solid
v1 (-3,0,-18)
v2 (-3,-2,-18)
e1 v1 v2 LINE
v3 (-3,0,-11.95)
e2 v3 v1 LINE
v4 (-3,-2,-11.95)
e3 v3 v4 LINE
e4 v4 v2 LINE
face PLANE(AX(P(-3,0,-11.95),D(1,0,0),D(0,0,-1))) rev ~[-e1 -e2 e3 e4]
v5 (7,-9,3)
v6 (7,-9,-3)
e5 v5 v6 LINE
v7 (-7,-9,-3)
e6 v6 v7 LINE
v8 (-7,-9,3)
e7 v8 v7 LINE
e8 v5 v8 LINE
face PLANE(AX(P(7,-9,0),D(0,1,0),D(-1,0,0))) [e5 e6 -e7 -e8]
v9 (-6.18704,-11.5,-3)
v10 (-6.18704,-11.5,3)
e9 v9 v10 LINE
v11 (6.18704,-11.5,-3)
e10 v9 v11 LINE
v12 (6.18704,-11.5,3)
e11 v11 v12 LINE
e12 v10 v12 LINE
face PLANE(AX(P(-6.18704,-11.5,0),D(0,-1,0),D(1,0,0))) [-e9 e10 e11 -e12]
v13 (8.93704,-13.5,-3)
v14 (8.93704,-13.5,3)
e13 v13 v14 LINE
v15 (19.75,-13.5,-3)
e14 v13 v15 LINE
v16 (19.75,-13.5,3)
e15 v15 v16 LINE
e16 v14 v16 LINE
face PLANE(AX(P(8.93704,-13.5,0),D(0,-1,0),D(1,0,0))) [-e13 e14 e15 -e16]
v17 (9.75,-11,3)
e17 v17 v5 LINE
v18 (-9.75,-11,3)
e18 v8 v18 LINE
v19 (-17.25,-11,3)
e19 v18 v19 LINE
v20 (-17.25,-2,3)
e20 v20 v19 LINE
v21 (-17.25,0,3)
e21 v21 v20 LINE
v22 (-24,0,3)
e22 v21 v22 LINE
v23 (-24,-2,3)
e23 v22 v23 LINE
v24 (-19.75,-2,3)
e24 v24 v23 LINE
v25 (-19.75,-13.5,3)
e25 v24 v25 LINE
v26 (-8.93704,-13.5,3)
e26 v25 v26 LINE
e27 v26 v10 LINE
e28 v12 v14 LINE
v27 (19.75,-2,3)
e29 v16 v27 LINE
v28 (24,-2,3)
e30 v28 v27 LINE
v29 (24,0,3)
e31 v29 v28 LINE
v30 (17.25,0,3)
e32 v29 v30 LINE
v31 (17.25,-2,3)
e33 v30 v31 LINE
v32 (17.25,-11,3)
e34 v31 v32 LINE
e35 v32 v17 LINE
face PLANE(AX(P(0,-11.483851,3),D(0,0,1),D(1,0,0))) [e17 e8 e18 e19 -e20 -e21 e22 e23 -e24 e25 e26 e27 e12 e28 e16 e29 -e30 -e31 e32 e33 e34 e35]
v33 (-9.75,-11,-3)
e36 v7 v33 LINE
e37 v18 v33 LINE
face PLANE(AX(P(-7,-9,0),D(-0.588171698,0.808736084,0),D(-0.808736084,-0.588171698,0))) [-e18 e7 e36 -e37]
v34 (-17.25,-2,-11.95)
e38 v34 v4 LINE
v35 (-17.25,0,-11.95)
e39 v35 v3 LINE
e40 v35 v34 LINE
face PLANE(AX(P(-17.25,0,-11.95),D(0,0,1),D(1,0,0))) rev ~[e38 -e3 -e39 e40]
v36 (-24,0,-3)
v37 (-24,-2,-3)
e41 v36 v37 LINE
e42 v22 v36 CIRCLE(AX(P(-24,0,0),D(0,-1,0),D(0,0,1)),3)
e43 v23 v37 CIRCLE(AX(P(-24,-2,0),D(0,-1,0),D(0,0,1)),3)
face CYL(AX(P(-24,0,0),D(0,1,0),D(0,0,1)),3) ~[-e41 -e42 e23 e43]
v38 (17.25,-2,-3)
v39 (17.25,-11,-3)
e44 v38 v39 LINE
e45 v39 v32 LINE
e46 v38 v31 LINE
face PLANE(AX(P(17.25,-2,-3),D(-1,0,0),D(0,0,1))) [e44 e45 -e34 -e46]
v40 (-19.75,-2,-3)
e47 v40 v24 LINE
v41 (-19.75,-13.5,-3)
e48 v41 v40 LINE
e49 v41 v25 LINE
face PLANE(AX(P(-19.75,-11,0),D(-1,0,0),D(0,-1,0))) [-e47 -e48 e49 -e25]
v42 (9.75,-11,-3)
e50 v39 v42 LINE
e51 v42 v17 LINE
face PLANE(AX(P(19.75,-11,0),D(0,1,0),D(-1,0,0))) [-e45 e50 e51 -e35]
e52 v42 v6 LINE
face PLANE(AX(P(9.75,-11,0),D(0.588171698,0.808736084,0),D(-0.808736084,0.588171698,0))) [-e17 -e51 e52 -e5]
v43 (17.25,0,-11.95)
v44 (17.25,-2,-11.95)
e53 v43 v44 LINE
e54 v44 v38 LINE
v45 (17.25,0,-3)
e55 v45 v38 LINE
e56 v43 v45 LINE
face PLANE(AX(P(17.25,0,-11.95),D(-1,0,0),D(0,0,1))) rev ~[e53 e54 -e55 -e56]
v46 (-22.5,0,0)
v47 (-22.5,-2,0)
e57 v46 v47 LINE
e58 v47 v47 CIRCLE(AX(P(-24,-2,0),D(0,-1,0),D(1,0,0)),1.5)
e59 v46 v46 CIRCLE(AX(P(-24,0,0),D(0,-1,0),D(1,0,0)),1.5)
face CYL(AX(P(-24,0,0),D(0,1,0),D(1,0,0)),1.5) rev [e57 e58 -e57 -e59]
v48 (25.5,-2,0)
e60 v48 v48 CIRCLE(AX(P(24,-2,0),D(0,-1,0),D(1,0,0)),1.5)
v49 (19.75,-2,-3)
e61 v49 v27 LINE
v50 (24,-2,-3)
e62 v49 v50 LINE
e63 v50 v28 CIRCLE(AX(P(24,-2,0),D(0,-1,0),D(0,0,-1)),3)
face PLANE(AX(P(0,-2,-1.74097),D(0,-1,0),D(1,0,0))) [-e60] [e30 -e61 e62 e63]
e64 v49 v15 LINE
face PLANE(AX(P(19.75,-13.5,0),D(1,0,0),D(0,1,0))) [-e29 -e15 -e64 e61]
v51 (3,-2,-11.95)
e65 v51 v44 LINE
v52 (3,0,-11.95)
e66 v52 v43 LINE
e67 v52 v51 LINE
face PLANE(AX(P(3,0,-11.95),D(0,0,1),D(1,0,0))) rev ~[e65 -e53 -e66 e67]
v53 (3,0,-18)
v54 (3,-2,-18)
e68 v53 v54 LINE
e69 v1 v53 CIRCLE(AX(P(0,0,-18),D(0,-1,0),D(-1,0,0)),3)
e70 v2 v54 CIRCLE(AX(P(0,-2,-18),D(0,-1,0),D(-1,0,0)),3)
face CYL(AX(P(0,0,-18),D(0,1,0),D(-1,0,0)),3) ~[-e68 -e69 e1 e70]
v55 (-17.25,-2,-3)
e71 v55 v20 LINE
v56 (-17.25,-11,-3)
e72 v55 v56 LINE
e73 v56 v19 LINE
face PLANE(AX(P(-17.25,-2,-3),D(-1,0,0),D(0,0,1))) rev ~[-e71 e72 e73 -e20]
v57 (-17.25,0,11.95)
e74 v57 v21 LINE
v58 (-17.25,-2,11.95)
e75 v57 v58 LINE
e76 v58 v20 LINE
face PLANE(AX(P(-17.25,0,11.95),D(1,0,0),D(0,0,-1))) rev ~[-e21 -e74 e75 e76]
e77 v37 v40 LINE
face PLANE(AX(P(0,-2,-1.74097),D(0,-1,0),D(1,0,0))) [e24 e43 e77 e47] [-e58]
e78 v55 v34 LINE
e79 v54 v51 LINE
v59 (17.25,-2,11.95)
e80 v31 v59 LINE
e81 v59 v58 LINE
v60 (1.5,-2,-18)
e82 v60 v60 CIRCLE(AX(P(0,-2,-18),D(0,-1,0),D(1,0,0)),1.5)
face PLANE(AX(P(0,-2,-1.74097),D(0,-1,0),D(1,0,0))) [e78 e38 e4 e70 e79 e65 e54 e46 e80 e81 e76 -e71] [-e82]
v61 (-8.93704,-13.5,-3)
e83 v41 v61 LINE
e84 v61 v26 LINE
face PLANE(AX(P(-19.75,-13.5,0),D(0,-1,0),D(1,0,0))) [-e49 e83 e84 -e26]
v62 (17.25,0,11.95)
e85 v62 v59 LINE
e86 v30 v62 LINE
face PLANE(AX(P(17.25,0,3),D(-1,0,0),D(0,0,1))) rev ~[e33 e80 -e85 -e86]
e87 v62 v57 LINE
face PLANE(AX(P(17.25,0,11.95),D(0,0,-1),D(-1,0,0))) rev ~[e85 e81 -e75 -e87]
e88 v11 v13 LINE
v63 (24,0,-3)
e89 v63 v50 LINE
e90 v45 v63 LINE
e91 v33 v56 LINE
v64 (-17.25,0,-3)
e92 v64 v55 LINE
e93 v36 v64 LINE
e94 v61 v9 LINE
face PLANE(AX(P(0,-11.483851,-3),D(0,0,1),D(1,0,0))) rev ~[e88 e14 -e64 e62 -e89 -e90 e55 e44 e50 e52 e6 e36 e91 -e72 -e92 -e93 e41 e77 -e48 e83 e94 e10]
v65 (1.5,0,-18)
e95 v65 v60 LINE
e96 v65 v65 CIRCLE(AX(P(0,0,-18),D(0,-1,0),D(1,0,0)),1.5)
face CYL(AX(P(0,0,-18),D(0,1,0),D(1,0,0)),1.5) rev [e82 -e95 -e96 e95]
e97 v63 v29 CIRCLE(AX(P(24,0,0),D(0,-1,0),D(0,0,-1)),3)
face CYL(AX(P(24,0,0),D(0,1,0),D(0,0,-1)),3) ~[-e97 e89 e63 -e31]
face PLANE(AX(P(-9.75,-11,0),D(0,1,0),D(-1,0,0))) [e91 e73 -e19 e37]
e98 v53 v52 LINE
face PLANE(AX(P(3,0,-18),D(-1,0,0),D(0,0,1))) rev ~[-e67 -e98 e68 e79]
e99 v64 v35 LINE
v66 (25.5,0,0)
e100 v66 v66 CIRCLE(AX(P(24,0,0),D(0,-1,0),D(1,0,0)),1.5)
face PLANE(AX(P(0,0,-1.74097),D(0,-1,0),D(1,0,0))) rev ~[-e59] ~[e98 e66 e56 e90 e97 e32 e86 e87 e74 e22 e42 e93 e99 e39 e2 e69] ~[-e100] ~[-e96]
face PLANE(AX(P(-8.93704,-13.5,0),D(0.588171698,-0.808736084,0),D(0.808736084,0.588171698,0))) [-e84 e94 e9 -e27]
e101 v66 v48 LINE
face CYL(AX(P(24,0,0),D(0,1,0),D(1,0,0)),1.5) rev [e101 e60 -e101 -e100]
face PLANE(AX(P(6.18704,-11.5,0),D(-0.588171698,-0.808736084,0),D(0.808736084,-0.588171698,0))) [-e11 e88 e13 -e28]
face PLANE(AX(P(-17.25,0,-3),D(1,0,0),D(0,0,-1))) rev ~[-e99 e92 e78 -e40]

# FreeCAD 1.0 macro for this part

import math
import FreeCAD as App
import Part
import Sketcher

V = App.Vector

doc = App.newDocument("Part")
body = doc.addObject("PartDesign::Body", "Body")

sketch1 = doc.addObject("Sketcher::SketchObject", "Sketch")
body.addObject(sketch1)
sketch1.AttachmentSupport = (doc.XZ_Plane, [""])
sketch1.MapMode = "FlatFace"
sketch1.addGeometry([
    Part.LineSegment(V(3, -11.9, 0), V(17.2, -11.9, 0)),
    Part.LineSegment(V(17.2, -11.9, 0), V(17.2, -3, 0)),
    Part.LineSegment(V(17.2, -3, 0), V(24, -3, 0)),
    Part.ArcOfCircle(Part.Circle(V(24, 0, 0), V(0, 0, 1), 3), math.radians(-90), math.radians(90)),
    Part.LineSegment(V(24, 3, 0), V(17.2, 3, 0)),
    Part.LineSegment(V(17.2, 3, 0), V(17.2, 11.9, 0)),
    Part.LineSegment(V(17.2, 11.9, 0), V(-17.2, 11.9, 0)),
    Part.LineSegment(V(-17.2, 11.9, 0), V(-17.2, 3, 0)),
    Part.LineSegment(V(-17.2, 3, 0), V(-24, 3, 0)),
    Part.ArcOfCircle(Part.Circle(V(-24, 0, 0), V(0, 0, 1), 3), math.radians(90), math.radians(270)),
    Part.LineSegment(V(-24, -3, 0), V(-17.2, -3, 0)),
    Part.LineSegment(V(-17.2, -3, 0), V(-17.2, -11.9, 0)),
    Part.LineSegment(V(-17.2, -11.9, 0), V(-3, -11.9, 0)),
    Part.LineSegment(V(-3, -11.9, 0), V(-3, -18, 0)),
    Part.ArcOfCircle(Part.Circle(V(0, -18, 0), V(0, 0, 1), 3), math.radians(180), math.radians(360)),
    Part.LineSegment(V(3, -18, 0), V(3, -11.9, 0)),
    Part.Circle(V(0, -18, 0), V(0, 0, 1), 1.5),
    Part.Circle(V(-24, 0, 0), V(0, 0, 1), 1.5),
    Part.Circle(V(24, 0, 0), V(0, 0, 1), 1.5),
], False)
sketch1.addConstraint([
    Sketcher.Constraint("Coincident", 0, 2, 1, 1),
    Sketcher.Constraint("Coincident", 1, 2, 2, 1),
    Sketcher.Constraint("Tangent", 2, 2, 3, 1),
    Sketcher.Constraint("Tangent", 3, 2, 4, 1),
    Sketcher.Constraint("Coincident", 4, 2, 5, 1),
    Sketcher.Constraint("Coincident", 5, 2, 6, 1),
    Sketcher.Constraint("Coincident", 6, 2, 7, 1),
    Sketcher.Constraint("Coincident", 7, 2, 8, 1),
    Sketcher.Constraint("Tangent", 8, 2, 9, 1),
    Sketcher.Constraint("Tangent", 9, 2, 10, 1),
    Sketcher.Constraint("Coincident", 10, 2, 11, 1),
    Sketcher.Constraint("Coincident", 11, 2, 12, 1),
    Sketcher.Constraint("Coincident", 12, 2, 13, 1),
    Sketcher.Constraint("Tangent", 13, 2, 14, 1),
    Sketcher.Constraint("Tangent", 14, 2, 15, 1),
    Sketcher.Constraint("Coincident", 15, 2, 0, 1),
    Sketcher.Constraint("Horizontal", 0),
    Sketcher.Constraint("Vertical", 1),
    Sketcher.Constraint("Horizontal", 2),
    Sketcher.Constraint("Horizontal", 4),
    Sketcher.Constraint("Vertical", 5),
    Sketcher.Constraint("Horizontal", 6),
    Sketcher.Constraint("Vertical", 7),
    Sketcher.Constraint("Horizontal", 8),
    Sketcher.Constraint("Horizontal", 10),
    Sketcher.Constraint("Vertical", 11),
    Sketcher.Constraint("Horizontal", 12),
    Sketcher.Constraint("Vertical", 13),
    Sketcher.Constraint("Vertical", 15),
    Sketcher.Constraint("Coincident", 16, 3, 14, 3),
    Sketcher.Constraint("Coincident", 17, 3, 9, 3),
    Sketcher.Constraint("Coincident", 18, 3, 3, 3),
    Sketcher.Constraint("Equal", 3, 9),
    Sketcher.Constraint("Equal", 9, 14),
    Sketcher.Constraint("Equal", 16, 17),
    Sketcher.Constraint("Equal", 17, 18),
    Sketcher.Constraint("Symmetric", 3, 3, 9, 3, -1, 1),
    Sketcher.Constraint("Symmetric", 0, 2, 6, 2, -1, 1),
    Sketcher.Constraint("Symmetric", 5, 2, 11, 2, -1, 1),
    Sketcher.Constraint("Symmetric", 4, 2, 7, 2, -2),
    Sketcher.Constraint("PointOnObject", 14, 3, -2),
    Sketcher.Constraint("Diameter", 16, 3.0),
    Sketcher.Constraint("Radius", 3, 3.0),
    Sketcher.Constraint("DistanceX", 6, 2, 6, 1, 34.5),
    Sketcher.Constraint("DistanceX", -1, 1, 3, 3, 24.0),
    Sketcher.Constraint("DistanceY", 14, 3, -1, 1, 18.0),
    Sketcher.Constraint("DistanceY", 1, 1, 1, 2, 8.95),
])
pad1 = doc.addObject("PartDesign::Pad", "Pad")
body.addObject(pad1)
pad1.Profile = sketch1
pad1.Length = 2

sketch2 = doc.addObject("Sketcher::SketchObject", "Sketch001")
body.addObject(sketch2)
sketch2.AttachmentSupport = (doc.XZ_Plane, [""])
sketch2.MapMode = "FlatFace"
sketch2.AttachmentOffset = App.Placement(V(0, 0, 2), App.Rotation())
sketch2.addGeometry([
    Part.LineSegment(V(-19.8, 3, 0), V(-19.8, -3, 0)),
    Part.LineSegment(V(-19.8, -3, 0), V(-17.2, -3, 0)),
    Part.LineSegment(V(-17.2, -3, 0), V(-17.2, 3, 0)),
    Part.LineSegment(V(-17.2, 3, 0), V(-19.8, 3, 0)),
    Part.LineSegment(V(17.2, 3, 0), V(17.2, -3, 0)),
    Part.LineSegment(V(17.2, -3, 0), V(19.8, -3, 0)),
    Part.LineSegment(V(19.8, -3, 0), V(19.8, 3, 0)),
    Part.LineSegment(V(19.8, 3, 0), V(17.2, 3, 0)),
], False)
sketch2.addConstraint([
    Sketcher.Constraint("Coincident", 0, 2, 1, 1),
    Sketcher.Constraint("Coincident", 1, 2, 2, 1),
    Sketcher.Constraint("Coincident", 2, 2, 3, 1),
    Sketcher.Constraint("Coincident", 3, 2, 0, 1),
    Sketcher.Constraint("Coincident", 4, 2, 5, 1),
    Sketcher.Constraint("Coincident", 5, 2, 6, 1),
    Sketcher.Constraint("Coincident", 6, 2, 7, 1),
    Sketcher.Constraint("Coincident", 7, 2, 4, 1),
    Sketcher.Constraint("Vertical", 0),
    Sketcher.Constraint("Horizontal", 1),
    Sketcher.Constraint("Vertical", 2),
    Sketcher.Constraint("Horizontal", 3),
    Sketcher.Constraint("Vertical", 4),
    Sketcher.Constraint("Horizontal", 5),
    Sketcher.Constraint("Vertical", 6),
    Sketcher.Constraint("Horizontal", 7),
    Sketcher.Constraint("Symmetric", 2, 2, 4, 2, -1, 1),
    Sketcher.Constraint("Symmetric", 0, 2, 6, 2, -1, 1),
    Sketcher.Constraint("Horizontal", 1, 2, 4, 2),
    Sketcher.Constraint("DistanceY", 0, 2, 0, 1, 6.0),
    Sketcher.Constraint("DistanceX", 1, 1, 1, 2, 2.5),
    Sketcher.Constraint("DistanceX", 0, 2, 4, 2, 37.0),
])
pad2 = doc.addObject("PartDesign::Pad", "Pad001")
body.addObject(pad2)
pad2.Profile = sketch2
pad2.Length = 9

sketch3 = doc.addObject("Sketcher::SketchObject", "Sketch002")
body.addObject(sketch3)
sketch3.AttachmentSupport = (doc.XY_Plane, [""])
sketch3.MapMode = "FlatFace"
sketch3.addGeometry([
    Part.LineSegment(V(-9.8, -11, 0), V(-19.8, -11, 0)),
    Part.LineSegment(V(-19.8, -11, 0), V(-19.8, -13.5, 0)),
    Part.LineSegment(V(-19.8, -13.5, 0), V(-8.9, -13.5, 0)),
    Part.LineSegment(V(-8.9, -13.5, 0), V(-6.2, -11.5, 0)),
    Part.LineSegment(V(-6.2, -11.5, 0), V(6.2, -11.5, 0)),
    Part.LineSegment(V(6.2, -11.5, 0), V(8.9, -13.5, 0)),
    Part.LineSegment(V(8.9, -13.5, 0), V(19.8, -13.5, 0)),
    Part.LineSegment(V(19.8, -13.5, 0), V(19.8, -11, 0)),
    Part.LineSegment(V(19.8, -11, 0), V(9.8, -11, 0)),
    Part.LineSegment(V(9.8, -11, 0), V(7, -9, 0)),
    Part.LineSegment(V(7, -9, 0), V(-7, -9, 0)),
    Part.LineSegment(V(-7, -9, 0), V(-9.8, -11, 0)),
], False)
sketch3.addConstraint([
    Sketcher.Constraint("Coincident", 0, 2, 1, 1),
    Sketcher.Constraint("Coincident", 1, 2, 2, 1),
    Sketcher.Constraint("Coincident", 2, 2, 3, 1),
    Sketcher.Constraint("Coincident", 3, 2, 4, 1),
    Sketcher.Constraint("Coincident", 4, 2, 5, 1),
    Sketcher.Constraint("Coincident", 5, 2, 6, 1),
    Sketcher.Constraint("Coincident", 6, 2, 7, 1),
    Sketcher.Constraint("Coincident", 7, 2, 8, 1),
    Sketcher.Constraint("Coincident", 8, 2, 9, 1),
    Sketcher.Constraint("Coincident", 9, 2, 10, 1),
    Sketcher.Constraint("Coincident", 10, 2, 11, 1),
    Sketcher.Constraint("Coincident", 11, 2, 0, 1),
    Sketcher.Constraint("Horizontal", 0),
    Sketcher.Constraint("Vertical", 1),
    Sketcher.Constraint("Horizontal", 2),
    Sketcher.Constraint("Horizontal", 4),
    Sketcher.Constraint("Horizontal", 6),
    Sketcher.Constraint("Vertical", 7),
    Sketcher.Constraint("Horizontal", 8),
    Sketcher.Constraint("Horizontal", 10),
    Sketcher.Constraint("Symmetric", 2, 2, 5, 2, -2),
    Sketcher.Constraint("Symmetric", 0, 2, 7, 2, -2),
    Sketcher.Constraint("Parallel", 5, 9),
    Sketcher.Constraint("Parallel", 3, 11),
    Sketcher.Constraint("Equal", 0, 8),
    Sketcher.Constraint("Equal", 3, 5),
    Sketcher.Constraint("Equal", 5, 9),
    Sketcher.Constraint("DistanceX", 0, 2, 0, 1, 10.0),
    Sketcher.Constraint("DistanceX", 10, 2, 10, 1, 14.0),
    Sketcher.Constraint("DistanceY", 1, 2, 1, 1, 2.5),
    Sketcher.Constraint("DistanceY", 0, 2, -1, 1, 11.0),
    Sketcher.Constraint("DistanceY", 9, 2, -1, 1, 9.0),
    Sketcher.Constraint("DistanceX", 1, 2, 6, 2, 39.5),
    Sketcher.Constraint("DistanceX", 2, 1, 2, 2, 10.81296),
])
pad3 = doc.addObject("PartDesign::Pad", "Pad002")
body.addObject(pad3)
pad3.Profile = sketch3
pad3.Length = 6
pad3.Midplane = True

doc.recompute()
